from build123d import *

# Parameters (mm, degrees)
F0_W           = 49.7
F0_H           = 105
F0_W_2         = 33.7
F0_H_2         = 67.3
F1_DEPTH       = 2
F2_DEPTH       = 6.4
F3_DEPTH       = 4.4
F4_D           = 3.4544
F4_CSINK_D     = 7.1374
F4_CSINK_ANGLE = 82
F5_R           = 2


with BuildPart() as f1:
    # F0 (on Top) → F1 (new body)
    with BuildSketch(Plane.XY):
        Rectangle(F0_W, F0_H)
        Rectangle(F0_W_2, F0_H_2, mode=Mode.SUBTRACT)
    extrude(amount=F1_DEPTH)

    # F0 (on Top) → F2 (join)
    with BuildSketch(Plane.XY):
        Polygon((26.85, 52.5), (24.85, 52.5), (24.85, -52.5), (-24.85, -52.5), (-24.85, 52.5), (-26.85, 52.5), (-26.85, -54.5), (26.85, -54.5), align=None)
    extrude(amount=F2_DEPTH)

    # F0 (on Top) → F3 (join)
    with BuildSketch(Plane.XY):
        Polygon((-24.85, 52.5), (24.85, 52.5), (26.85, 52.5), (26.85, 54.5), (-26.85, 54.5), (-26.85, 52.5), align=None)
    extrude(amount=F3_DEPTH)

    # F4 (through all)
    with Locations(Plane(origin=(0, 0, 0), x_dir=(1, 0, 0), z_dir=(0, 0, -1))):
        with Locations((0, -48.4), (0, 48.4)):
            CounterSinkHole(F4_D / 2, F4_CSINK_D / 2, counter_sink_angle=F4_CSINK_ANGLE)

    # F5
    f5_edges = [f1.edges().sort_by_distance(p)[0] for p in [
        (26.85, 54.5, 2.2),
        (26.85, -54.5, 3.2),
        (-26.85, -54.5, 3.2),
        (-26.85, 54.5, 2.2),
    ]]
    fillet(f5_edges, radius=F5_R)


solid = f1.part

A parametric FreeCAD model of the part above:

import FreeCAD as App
import Part
import Sketcher


def edges_at(feature, points):
    """Names of the edges that pass closest to the given points."""
    edges = feature.Shape.Edges
    near = lambda p: min(range(len(edges)), key=lambda i: edges[i].distToShape(Part.Vertex(*p))[0])
    return sorted({f"Edge{near(p) + 1}" for p in points})


def add_polygon(sketch, points):
    """Adds a closed chain of lines whose ends are joined by coincident constraints."""
    first, n = sketch.GeometryCount, len(points)
    for a, b in zip(points, points[1:] + points[:1]):
        sketch.addGeometry(Part.LineSegment(App.Vector(*a, 0), App.Vector(*b, 0)), False)
    for i in range(n):
        sketch.addConstraint(Sketcher.Constraint("Coincident", first + i, 2, first + (i + 1) % n, 1))

doc = App.newDocument("Part")
body = doc.addObject("PartDesign::Body", "Body")

# Sketch on XY plane
sketch1 = body.newObject("Sketcher::SketchObject", "Sketch")
sketch1.AttachmentSupport = (doc.getObject("XY_Plane"), [""])
sketch1.MapMode = "FlatFace"
add_polygon(sketch1, [(-25, 52), (-25, -52), (25, -52), (25, 52)])  # lines 0-3
add_polygon(sketch1, [(17, -34), (-17, -34), (-17, 34), (17, 34)])  # lines 4-7
sketch1.addConstraint([
    Sketcher.Constraint("Vertical", 0),
    Sketcher.Constraint("Horizontal", 1),
    Sketcher.Constraint("Vertical", 2),
    Sketcher.Constraint("Horizontal", 3),
    Sketcher.Constraint("Horizontal", 4),
    Sketcher.Constraint("Vertical", 5),
    Sketcher.Constraint("Horizontal", 6),
    Sketcher.Constraint("Vertical", 7),
    Sketcher.Constraint("Symmetric", 0, 2, 2, 2, -1, 1),
    Sketcher.Constraint("Symmetric", 4, 2, 6, 2, -1, 1),
    Sketcher.Constraint("DistanceY", 0, 2, 0, 1, 105.0),
    Sketcher.Constraint("DistanceX", 1, 1, 1, 2, 49.7),
    Sketcher.Constraint("DistanceX", 4, 2, 4, 1, 33.7),
    Sketcher.Constraint("DistanceY", 5, 1, 5, 2, 67.3),
])
pad1 = body.newObject("PartDesign::Pad", "Pad")
pad1.Profile = sketch1
pad1.Length = 2

# Sketch on XY plane
sketch2 = body.newObject("Sketcher::SketchObject", "Sketch001")
sketch2.AttachmentSupport = (doc.getObject("XY_Plane"), [""])
sketch2.MapMode = "FlatFace"
add_polygon(sketch2, [(26.9, 52.5), (24.9, 52.5), (24.9, -52.5), (-24.9, -52.5), (-24.9, 52.5), (-26.9, 52.5), (-26.9, -54.5), (26.9, -54.5)])  # lines 0-7
sketch2.addConstraint([
    Sketcher.Constraint("Horizontal", 0),
    Sketcher.Constraint("Vertical", 1),
    Sketcher.Constraint("Horizontal", 2),
    Sketcher.Constraint("Vertical", 3),
    Sketcher.Constraint("Horizontal", 4),
    Sketcher.Constraint("Vertical", 5),
    Sketcher.Constraint("Horizontal", 6),
    Sketcher.Constraint("Vertical", 7),
    Sketcher.Constraint("Symmetric", 0, 2, 2, 2, -1, 1),
    Sketcher.Constraint("Symmetric", 4, 2, 7, 2, -2),
    Sketcher.Constraint("DistanceX", 0, 2, 0, 1, 2.0),
    Sketcher.Constraint("DistanceY", 1, 2, 1, 1, 105.0),
    Sketcher.Constraint("DistanceY", 5, 2, 5, 1, 107.0),
    Sketcher.Constraint("DistanceX", 2, 2, 2, 1, 49.7),
])
pad2 = body.newObject("PartDesign::Pad", "Pad001")
pad2.Profile = sketch2
pad2.Length = 6.4

# Sketch on XY plane
sketch3 = body.newObject("Sketcher::SketchObject", "Sketch002")
sketch3.AttachmentSupport = (doc.getObject("XY_Plane"), [""])
sketch3.MapMode = "FlatFace"
add_polygon(sketch3, [(26.9, 52.5), (26.9, 54.5), (-26.9, 54.5), (-26.9, 52.5)])  # lines 0-3
sketch3.addConstraint([
    Sketcher.Constraint("Vertical", 0),
    Sketcher.Constraint("Horizontal", 1),
    Sketcher.Constraint("Vertical", 2),
    Sketcher.Constraint("Horizontal", 3),
    Sketcher.Constraint("DistanceY", 0, 1, 0, 2, 2.0),
    Sketcher.Constraint("DistanceX", 1, 2, 1, 1, 53.7),
    Sketcher.Constraint("DistanceY", -1, 1, 0, 2, 54.5),
    Sketcher.Constraint("DistanceX", -1, 1, 0, 2, 26.85),
])
pad3 = body.newObject("PartDesign::Pad", "Pad002")
pad3.Profile = sketch3
pad3.Length = 4.4

# Sketch on XY plane
sketch4 = body.newObject("Sketcher::SketchObject", "Sketch003")
sketch4.AttachmentSupport = (doc.getObject("XY_Plane"), [""])
sketch4.MapMode = "FlatFace"
sketch4.addGeometry([
    Part.Circle(App.Vector(0, 48.4, 0), App.Vector(0, 0, 1), 1.7),
    Part.Circle(App.Vector(0, -48.4, 0), App.Vector(0, 0, 1), 1.7),
], False)
sketch4.addConstraint([
    Sketcher.Constraint("Equal", 0, 1),
    Sketcher.Constraint("Symmetric", 0, 3, 1, 3, -1, 1),
    Sketcher.Constraint("PointOnObject", 0, 3, -2),
    Sketcher.Constraint("Diameter", 0, 3.4544),
    Sketcher.Constraint("DistanceY", -1, 1, 0, 3, 48.4),
])
doc.recompute()
hole = body.newObject("PartDesign::Hole", "Hole")
hole.Profile = sketch4
hole.ThreadType = "None"
hole.Diameter = 3.4544
hole.DepthType = "ThroughAll"
hole.HoleCutType = "Countersink"
hole.HoleCutDiameter = 7.1374
hole.HoleCutCountersinkAngle = 82
hole.Reversed = True
doc.recompute()

fillet = body.newObject("PartDesign::Fillet", "Fillet")
fillet.Base = (hole, edges_at(hole, [
    (26.85, 54.5, 2.2),
    (26.85, -54.5, 3.2),
    (-26.85, -54.5, 3.2),
    (-26.85, 54.5, 2.2),
]))
fillet.Radius = 2

doc.recompute()
